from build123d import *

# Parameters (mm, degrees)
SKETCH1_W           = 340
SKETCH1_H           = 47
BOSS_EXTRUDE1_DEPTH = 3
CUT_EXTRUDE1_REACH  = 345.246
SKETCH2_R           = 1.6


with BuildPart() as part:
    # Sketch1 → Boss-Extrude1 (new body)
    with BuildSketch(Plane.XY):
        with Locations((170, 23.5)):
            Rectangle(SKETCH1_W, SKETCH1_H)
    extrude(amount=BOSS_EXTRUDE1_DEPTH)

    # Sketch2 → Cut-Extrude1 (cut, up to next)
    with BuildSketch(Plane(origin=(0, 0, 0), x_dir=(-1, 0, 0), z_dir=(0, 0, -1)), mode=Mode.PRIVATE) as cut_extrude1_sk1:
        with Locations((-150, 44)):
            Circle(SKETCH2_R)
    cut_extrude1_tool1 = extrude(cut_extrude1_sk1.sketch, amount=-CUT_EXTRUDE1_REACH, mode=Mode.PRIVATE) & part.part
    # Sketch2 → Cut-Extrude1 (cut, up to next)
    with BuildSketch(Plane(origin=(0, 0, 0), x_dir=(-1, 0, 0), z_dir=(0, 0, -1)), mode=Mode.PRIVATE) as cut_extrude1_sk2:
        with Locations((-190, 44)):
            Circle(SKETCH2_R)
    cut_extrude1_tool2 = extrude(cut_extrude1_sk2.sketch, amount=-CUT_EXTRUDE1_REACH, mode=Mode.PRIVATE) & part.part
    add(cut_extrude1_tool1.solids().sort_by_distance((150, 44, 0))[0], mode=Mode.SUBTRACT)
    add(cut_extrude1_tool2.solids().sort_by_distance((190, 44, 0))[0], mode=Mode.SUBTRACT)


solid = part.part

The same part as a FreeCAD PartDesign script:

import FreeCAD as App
import Part
import Sketcher
from FreeCAD import Vector
Q = App.Units.Quantity

doc = App.newDocument("Part")
params = doc.addObject("Spreadsheet::Sheet", "Params")
for row, (alias, value) in enumerate([
    ("sketch1_width", "340 mm"),
    ("sketch1_height", "47 mm"),
    ("pad1_length", "3 mm"),
    ("sketch2_diameter", "3.2 mm"),
    ("sketch3_diameter", "3.2 mm"),
], start=1):
    params.set(f"A{row}", alias)
    params.set(f"B{row}", "=" + value)
    params.setAlias(f"B{row}", alias)

body = doc.addObject("PartDesign::Body", "Body")

sketch1 = body.newObject("Sketcher::SketchObject", "Sketch")
sketch1.AttachmentSupport = (doc.getObject("XY_Plane"), [""])
sketch1.MapMode = "FlatFace"
sketch1.addGeometry(Part.LineSegment(Vector(0, 47, 0), Vector(0, 0, 0)), False)
sketch1.addGeometry(Part.LineSegment(Vector(0, 0, 0), Vector(340, 0, 0)), False)
sketch1.addGeometry(Part.LineSegment(Vector(340, 0, 0), Vector(340, 47, 0)), False)
sketch1.addGeometry(Part.LineSegment(Vector(340, 47, 0), Vector(0, 47, 0)), False)
sketch1.addConstraint(Sketcher.Constraint("Coincident", 0, 2, 1, 1))
sketch1.addConstraint(Sketcher.Constraint("Coincident", 1, 2, 2, 1))
sketch1.addConstraint(Sketcher.Constraint("Coincident", 2, 2, 3, 1))
sketch1.addConstraint(Sketcher.Constraint("Coincident", 3, 2, 0, 1))
sketch1.addConstraint(Sketcher.Constraint("Vertical", 0))
sketch1.addConstraint(Sketcher.Constraint("Horizontal", 1))
sketch1.addConstraint(Sketcher.Constraint("Vertical", 2))
sketch1.addConstraint(Sketcher.Constraint("Horizontal", 3))
sketch1.addConstraint(Sketcher.Constraint("Coincident", 0, 2, -1, 1))
sketch1.addConstraint(Sketcher.Constraint("DistanceX", 1, 1, 1, 2, Q("340 mm")))
sketch1.addConstraint(Sketcher.Constraint("DistanceY", 0, 2, 0, 1, Q("47 mm")))
sketch1.setExpression("Constraints[9]", "Params.sketch1_width")
sketch1.setExpression("Constraints[10]", "Params.sketch1_height")
pad1 = body.newObject("PartDesign::Pad", "Pad")
pad1.Profile = sketch1
pad1.setExpression("Length", "Params.pad1_length")

sketch2 = body.newObject("Sketcher::SketchObject", "Sketch001")
sketch2.AttachmentSupport = (doc.getObject("XY_Plane"), [""])
sketch2.MapMode = "FlatFace"
sketch2.addGeometry(Part.Circle(Vector(150, 44, 0), Vector(0, 0, 1), 1.6), False)
sketch2.addConstraint(Sketcher.Constraint("Diameter", 0, Q("3.2 mm")))
sketch2.addConstraint(Sketcher.Constraint("DistanceX", -1, 1, 0, 3, Q("150 mm")))
sketch2.addConstraint(Sketcher.Constraint("DistanceY", -1, 1, 0, 3, Q("44 mm")))
sketch2.setExpression("Constraints[0]", "Params.sketch2_diameter")
pocket1 = body.newObject("PartDesign::Pocket", "Pocket")
pocket1.Profile = sketch2
pocket1.Type = "UpToFirst"
pocket1.Reversed = True

sketch3 = body.newObject("Sketcher::SketchObject", "Sketch002")
sketch3.AttachmentSupport = (doc.getObject("XY_Plane"), [""])
sketch3.MapMode = "FlatFace"
sketch3.addGeometry(Part.Circle(Vector(190, 44, 0), Vector(0, 0, 1), 1.6), False)
sketch3.addConstraint(Sketcher.Constraint("Diameter", 0, Q("3.2 mm")))
sketch3.addConstraint(Sketcher.Constraint("DistanceX", -1, 1, 0, 3, Q("190 mm")))
sketch3.addConstraint(Sketcher.Constraint("DistanceY", -1, 1, 0, 3, Q("44 mm")))
sketch3.setExpression("Constraints[0]", "Params.sketch3_diameter")
pocket2 = body.newObject("PartDesign::Pocket", "Pocket001")
pocket2.Profile = sketch3
pocket2.Type = "UpToFirst"
pocket2.Reversed = True

doc.recompute()
